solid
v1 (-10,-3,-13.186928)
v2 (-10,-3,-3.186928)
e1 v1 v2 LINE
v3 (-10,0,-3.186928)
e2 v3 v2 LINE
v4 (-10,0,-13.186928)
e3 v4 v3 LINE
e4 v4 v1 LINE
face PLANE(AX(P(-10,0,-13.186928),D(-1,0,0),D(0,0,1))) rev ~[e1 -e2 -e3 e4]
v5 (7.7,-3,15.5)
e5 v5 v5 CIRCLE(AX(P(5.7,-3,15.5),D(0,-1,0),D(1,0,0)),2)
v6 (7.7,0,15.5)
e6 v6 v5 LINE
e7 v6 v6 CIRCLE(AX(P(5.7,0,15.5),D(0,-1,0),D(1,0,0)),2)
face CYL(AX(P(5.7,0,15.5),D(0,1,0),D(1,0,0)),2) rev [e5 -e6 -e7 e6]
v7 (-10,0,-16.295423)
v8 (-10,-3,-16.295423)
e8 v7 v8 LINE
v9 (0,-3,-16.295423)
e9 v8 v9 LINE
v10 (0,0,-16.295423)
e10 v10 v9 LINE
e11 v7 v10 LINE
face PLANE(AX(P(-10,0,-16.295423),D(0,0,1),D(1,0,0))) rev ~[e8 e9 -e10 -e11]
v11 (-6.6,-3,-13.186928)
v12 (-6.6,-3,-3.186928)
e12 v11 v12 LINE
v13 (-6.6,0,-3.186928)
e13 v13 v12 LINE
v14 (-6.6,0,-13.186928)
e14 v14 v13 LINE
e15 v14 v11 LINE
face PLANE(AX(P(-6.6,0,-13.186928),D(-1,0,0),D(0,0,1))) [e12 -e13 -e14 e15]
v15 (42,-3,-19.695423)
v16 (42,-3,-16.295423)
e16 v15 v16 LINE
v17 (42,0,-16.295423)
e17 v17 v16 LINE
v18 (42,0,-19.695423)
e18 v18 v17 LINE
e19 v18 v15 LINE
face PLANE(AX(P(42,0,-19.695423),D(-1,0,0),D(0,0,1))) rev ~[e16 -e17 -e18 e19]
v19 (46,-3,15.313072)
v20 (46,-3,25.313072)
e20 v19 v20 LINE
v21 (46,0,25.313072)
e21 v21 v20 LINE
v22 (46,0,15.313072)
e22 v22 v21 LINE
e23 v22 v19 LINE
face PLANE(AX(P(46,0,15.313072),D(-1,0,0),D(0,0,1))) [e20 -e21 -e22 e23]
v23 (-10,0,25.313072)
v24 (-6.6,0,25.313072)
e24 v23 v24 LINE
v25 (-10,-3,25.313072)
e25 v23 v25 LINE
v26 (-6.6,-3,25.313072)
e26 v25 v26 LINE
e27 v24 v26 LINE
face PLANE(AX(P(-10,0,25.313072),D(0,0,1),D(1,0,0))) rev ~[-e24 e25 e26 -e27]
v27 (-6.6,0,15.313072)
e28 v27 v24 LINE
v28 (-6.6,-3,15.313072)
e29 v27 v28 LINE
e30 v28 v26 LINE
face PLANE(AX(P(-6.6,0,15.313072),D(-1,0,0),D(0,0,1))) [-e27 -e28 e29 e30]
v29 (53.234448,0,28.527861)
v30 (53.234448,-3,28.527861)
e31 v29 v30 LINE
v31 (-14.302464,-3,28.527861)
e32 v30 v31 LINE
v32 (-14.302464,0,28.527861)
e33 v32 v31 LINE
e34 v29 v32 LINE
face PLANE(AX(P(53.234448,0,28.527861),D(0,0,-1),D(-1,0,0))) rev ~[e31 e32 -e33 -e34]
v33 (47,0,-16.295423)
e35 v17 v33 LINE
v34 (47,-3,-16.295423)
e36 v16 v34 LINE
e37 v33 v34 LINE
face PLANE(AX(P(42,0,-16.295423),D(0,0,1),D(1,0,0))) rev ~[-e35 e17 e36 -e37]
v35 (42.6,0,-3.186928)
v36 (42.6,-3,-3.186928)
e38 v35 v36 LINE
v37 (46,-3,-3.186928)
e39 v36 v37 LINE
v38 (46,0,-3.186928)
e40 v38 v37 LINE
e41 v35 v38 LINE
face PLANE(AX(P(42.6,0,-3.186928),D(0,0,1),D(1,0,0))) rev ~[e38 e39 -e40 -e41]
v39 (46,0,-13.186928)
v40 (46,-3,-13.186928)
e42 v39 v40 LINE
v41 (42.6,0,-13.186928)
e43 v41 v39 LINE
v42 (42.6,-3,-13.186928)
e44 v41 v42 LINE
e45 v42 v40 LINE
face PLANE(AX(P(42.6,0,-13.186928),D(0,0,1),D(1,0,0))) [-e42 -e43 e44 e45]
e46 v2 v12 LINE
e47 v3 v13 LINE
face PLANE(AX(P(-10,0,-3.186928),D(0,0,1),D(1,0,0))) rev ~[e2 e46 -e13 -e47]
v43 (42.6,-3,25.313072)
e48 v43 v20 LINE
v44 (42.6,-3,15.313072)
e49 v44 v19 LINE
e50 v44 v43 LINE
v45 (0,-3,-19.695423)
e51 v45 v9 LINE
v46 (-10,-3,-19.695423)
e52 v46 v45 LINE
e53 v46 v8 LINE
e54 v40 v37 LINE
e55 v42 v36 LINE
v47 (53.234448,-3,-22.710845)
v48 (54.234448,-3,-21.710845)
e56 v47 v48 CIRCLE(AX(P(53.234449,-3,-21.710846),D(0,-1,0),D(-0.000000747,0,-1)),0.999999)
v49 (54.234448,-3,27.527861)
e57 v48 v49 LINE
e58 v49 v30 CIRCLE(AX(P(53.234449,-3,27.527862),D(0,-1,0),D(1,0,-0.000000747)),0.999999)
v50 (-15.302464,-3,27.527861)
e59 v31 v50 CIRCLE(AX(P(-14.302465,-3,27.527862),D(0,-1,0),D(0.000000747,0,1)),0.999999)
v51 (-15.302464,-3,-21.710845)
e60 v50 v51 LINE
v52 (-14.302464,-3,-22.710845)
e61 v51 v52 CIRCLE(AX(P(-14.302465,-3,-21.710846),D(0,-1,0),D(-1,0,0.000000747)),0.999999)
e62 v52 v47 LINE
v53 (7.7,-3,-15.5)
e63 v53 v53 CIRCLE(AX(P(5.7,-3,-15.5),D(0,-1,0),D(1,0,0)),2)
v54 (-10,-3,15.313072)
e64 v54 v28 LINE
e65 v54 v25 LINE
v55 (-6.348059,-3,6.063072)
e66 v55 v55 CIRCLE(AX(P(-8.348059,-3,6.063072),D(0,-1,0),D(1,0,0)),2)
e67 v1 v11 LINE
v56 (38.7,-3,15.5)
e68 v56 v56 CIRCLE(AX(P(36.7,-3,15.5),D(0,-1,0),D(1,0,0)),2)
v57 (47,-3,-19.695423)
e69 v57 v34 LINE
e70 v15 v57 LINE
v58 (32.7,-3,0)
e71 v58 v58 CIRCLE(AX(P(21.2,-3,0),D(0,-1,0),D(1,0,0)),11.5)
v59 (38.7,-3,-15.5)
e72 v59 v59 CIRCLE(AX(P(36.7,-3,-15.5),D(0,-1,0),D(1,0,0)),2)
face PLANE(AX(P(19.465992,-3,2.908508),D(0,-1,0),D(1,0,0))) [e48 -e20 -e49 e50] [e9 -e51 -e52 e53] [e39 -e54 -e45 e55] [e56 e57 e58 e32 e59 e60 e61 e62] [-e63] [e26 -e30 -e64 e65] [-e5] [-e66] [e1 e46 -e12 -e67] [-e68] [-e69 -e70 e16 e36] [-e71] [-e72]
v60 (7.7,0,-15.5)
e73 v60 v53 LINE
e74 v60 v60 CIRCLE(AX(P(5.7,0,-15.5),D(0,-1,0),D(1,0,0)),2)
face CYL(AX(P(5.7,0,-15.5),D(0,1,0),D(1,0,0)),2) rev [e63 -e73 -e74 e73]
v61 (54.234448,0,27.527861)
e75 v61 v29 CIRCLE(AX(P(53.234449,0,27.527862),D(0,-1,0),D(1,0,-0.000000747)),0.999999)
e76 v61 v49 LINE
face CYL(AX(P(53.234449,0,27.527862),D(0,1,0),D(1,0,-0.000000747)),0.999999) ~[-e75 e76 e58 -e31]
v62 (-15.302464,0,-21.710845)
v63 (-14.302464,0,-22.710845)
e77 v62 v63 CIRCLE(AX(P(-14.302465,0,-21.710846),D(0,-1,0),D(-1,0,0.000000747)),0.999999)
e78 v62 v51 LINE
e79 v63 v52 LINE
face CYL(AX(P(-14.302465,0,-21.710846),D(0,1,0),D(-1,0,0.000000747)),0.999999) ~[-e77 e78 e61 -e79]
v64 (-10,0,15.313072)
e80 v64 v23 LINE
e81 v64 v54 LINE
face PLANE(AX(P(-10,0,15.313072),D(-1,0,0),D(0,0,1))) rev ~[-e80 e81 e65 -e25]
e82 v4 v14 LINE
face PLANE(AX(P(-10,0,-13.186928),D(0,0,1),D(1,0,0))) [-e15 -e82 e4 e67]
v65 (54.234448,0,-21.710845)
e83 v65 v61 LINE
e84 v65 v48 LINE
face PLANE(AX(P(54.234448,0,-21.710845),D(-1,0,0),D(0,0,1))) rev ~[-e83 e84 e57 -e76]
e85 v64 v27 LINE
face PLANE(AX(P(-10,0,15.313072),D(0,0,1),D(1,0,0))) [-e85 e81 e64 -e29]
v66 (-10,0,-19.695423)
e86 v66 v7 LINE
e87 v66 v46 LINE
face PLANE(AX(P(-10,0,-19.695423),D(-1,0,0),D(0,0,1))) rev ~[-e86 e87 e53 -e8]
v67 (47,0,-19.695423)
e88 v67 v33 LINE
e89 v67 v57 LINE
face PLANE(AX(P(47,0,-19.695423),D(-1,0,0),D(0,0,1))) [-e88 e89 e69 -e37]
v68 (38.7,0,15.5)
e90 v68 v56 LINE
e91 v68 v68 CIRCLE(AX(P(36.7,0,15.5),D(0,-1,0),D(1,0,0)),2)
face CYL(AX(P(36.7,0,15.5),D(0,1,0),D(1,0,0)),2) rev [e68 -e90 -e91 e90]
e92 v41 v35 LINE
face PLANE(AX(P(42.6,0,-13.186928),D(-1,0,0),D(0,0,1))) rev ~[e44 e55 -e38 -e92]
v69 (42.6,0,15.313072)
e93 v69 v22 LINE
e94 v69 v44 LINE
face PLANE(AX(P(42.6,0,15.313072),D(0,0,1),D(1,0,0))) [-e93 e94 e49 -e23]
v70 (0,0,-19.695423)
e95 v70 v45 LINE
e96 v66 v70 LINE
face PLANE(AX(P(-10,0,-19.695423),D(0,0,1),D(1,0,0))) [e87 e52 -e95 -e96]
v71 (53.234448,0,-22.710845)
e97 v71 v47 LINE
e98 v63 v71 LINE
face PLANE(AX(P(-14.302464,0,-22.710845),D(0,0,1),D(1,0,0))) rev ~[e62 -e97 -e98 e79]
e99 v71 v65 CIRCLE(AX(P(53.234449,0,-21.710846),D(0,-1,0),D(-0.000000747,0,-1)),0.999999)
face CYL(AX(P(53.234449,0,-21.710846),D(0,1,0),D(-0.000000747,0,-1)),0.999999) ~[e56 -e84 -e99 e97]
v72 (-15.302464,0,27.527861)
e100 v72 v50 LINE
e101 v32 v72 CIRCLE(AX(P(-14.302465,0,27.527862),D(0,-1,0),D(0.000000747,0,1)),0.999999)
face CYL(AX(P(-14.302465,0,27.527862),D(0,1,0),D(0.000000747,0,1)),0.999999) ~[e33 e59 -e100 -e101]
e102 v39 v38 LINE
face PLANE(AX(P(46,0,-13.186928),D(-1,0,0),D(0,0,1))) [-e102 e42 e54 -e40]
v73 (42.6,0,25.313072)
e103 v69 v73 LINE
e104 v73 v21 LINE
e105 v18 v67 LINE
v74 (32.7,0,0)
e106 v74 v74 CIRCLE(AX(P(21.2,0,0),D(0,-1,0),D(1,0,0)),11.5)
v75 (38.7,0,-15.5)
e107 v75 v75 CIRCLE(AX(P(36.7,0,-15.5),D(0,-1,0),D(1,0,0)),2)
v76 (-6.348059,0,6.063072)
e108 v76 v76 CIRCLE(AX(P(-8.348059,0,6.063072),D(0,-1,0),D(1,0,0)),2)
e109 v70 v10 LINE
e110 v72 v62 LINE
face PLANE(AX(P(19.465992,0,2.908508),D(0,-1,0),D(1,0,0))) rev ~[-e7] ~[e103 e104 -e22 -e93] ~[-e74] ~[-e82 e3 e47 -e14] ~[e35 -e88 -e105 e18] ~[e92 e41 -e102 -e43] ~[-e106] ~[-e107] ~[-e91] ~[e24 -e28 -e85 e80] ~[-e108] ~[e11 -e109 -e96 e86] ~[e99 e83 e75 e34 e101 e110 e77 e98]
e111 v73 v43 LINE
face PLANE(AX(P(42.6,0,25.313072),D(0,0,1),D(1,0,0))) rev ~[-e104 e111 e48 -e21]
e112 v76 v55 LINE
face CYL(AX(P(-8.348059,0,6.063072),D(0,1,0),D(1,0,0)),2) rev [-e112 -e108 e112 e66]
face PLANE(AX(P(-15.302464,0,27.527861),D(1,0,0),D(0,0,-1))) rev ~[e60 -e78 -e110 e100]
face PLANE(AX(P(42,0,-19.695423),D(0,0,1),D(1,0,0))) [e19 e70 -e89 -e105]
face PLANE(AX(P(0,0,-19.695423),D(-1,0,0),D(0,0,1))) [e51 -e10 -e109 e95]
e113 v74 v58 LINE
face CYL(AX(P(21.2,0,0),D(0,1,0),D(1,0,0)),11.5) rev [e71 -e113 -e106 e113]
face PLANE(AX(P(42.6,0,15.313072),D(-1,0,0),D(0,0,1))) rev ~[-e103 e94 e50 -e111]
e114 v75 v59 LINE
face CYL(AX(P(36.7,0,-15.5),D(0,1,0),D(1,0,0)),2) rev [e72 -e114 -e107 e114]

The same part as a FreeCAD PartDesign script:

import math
import FreeCAD as App
import Part
import Sketcher
from FreeCAD import Vector
Q = App.Units.Quantity


def add_polygon(sketch, points):
    """Adds a closed chain of lines whose ends are joined by coincident constraints."""
    first, n = sketch.GeometryCount, len(points)
    for a, b in zip(points, points[1:] + points[:1]):
        sketch.addGeometry(Part.LineSegment(App.Vector(*a, 0), App.Vector(*b, 0)), False)
    for i in range(n):
        sketch.addConstraint(Sketcher.Constraint("Coincident", first + i, 2, first + (i + 1) % n, 1))

doc = App.newDocument("Part")
body = doc.addObject("PartDesign::Body", "Body")

# Sketch on XZ plane
sketch1 = doc.addObject("Sketcher::SketchObject", "Sketch")
body.addObject(sketch1)
sketch1.AttachmentSupport = (doc.XZ_Plane, [""])
sketch1.MapMode = "FlatFace"
sketch1.addGeometry(Part.LineSegment(Vector(53.2, 28.5, 0), Vector(-14.3, 28.5, 0)), False)  # 0
sketch1.addGeometry(Part.ArcOfCircle(Part.Circle(Vector(-14.3, 27.5, 0), Vector(0, 0, 1), 1), math.radians(90), math.radians(180)), False)  # 1
sketch1.addGeometry(Part.LineSegment(Vector(-15.3, 27.5, 0), Vector(-15.3, -21.7, 0)), False)  # 2
sketch1.addGeometry(Part.ArcOfCircle(Part.Circle(Vector(-14.3, -21.7, 0), Vector(0, 0, 1), 1), math.radians(180), math.radians(270)), False)  # 3
sketch1.addGeometry(Part.LineSegment(Vector(-14.3, -22.7, 0), Vector(53.2, -22.7, 0)), False)  # 4
sketch1.addGeometry(Part.ArcOfCircle(Part.Circle(Vector(53.2, -21.7, 0), Vector(0, 0, 1), 1), math.radians(-90), math.radians(0)), False)  # 5
sketch1.addGeometry(Part.LineSegment(Vector(54.2, -21.7, 0), Vector(54.2, 27.5, 0)), False)  # 6
sketch1.addGeometry(Part.ArcOfCircle(Part.Circle(Vector(53.2, 27.5, 0), Vector(0, 0, 1), 1), math.radians(0), math.radians(90)), False)  # 7
add_polygon(sketch1, [(0, -19.7), (-10, -19.7), (-10, -16.3), (0, -16.3)])  # lines 8-11
sketch1.addGeometry(Part.Circle(Vector(5.7, -15.5, 0), Vector(0, 0, 1), 2), False)  # 12
add_polygon(sketch1, [(-6.6, -13.2), (-10, -13.2), (-10, -3.2), (-6.6, -3.2)])  # lines 13-16
sketch1.addGeometry(Part.Circle(Vector(36.7, -15.5, 0), Vector(0, 0, 1), 2), False)  # 17
add_polygon(sketch1, [(47, -19.7), (42, -19.7), (42, -16.3), (47, -16.3)])  # lines 18-21
sketch1.addGeometry(Part.Circle(Vector(21.2, 0, 0), Vector(0, 0, 1), 11.5), False)  # 22
add_polygon(sketch1, [(46, -13.2), (42.6, -13.2), (42.6, -3.2), (46, -3.2)])  # lines 23-26
sketch1.addGeometry(Part.Circle(Vector(-8.3, 6.1, 0), Vector(0, 0, 1), 2), False)  # 27
add_polygon(sketch1, [(-6.6, 15.3), (-10, 15.3), (-10, 25.3), (-6.6, 25.3)])  # lines 28-31
sketch1.addGeometry(Part.Circle(Vector(5.7, 15.5, 0), Vector(0, 0, 1), 2), False)  # 32
sketch1.addGeometry(Part.Circle(Vector(36.7, 15.5, 0), Vector(0, 0, 1), 2), False)  # 33
add_polygon(sketch1, [(46, 15.3), (42.6, 15.3), (42.6, 25.3), (46, 25.3)])  # lines 34-37
sketch1.addConstraint(Sketcher.Constraint("Tangent", 0, 2, 1, 1))
sketch1.addConstraint(Sketcher.Constraint("Tangent", 1, 2, 2, 1))
sketch1.addConstraint(Sketcher.Constraint("Tangent", 2, 2, 3, 1))
sketch1.addConstraint(Sketcher.Constraint("Tangent", 3, 2, 4, 1))
sketch1.addConstraint(Sketcher.Constraint("Tangent", 4, 2, 5, 1))
sketch1.addConstraint(Sketcher.Constraint("Tangent", 5, 2, 6, 1))
sketch1.addConstraint(Sketcher.Constraint("Tangent", 6, 2, 7, 1))
sketch1.addConstraint(Sketcher.Constraint("Tangent", 7, 2, 0, 1))
sketch1.addConstraint(Sketcher.Constraint("Horizontal", 0))
sketch1.addConstraint(Sketcher.Constraint("Vertical", 2))
sketch1.addConstraint(Sketcher.Constraint("Horizontal", 4))
sketch1.addConstraint(Sketcher.Constraint("Vertical", 6))
sketch1.addConstraint(Sketcher.Constraint("Horizontal", 8))
sketch1.addConstraint(Sketcher.Constraint("Vertical", 9))
sketch1.addConstraint(Sketcher.Constraint("Horizontal", 10))
sketch1.addConstraint(Sketcher.Constraint("Vertical", 11))
sketch1.addConstraint(Sketcher.Constraint("Horizontal", 13))
sketch1.addConstraint(Sketcher.Constraint("Vertical", 14))
sketch1.addConstraint(Sketcher.Constraint("Horizontal", 15))
sketch1.addConstraint(Sketcher.Constraint("Vertical", 16))
sketch1.addConstraint(Sketcher.Constraint("Horizontal", 18))
sketch1.addConstraint(Sketcher.Constraint("Vertical", 19))
sketch1.addConstraint(Sketcher.Constraint("Horizontal", 20))
sketch1.addConstraint(Sketcher.Constraint("Vertical", 21))
sketch1.addConstraint(Sketcher.Constraint("Horizontal", 23))
sketch1.addConstraint(Sketcher.Constraint("Vertical", 24))
sketch1.addConstraint(Sketcher.Constraint("Horizontal", 25))
sketch1.addConstraint(Sketcher.Constraint("Vertical", 26))
sketch1.addConstraint(Sketcher.Constraint("Horizontal", 28))
sketch1.addConstraint(Sketcher.Constraint("Vertical", 29))
sketch1.addConstraint(Sketcher.Constraint("Horizontal", 30))
sketch1.addConstraint(Sketcher.Constraint("Vertical", 31))
sketch1.addConstraint(Sketcher.Constraint("Horizontal", 34))
sketch1.addConstraint(Sketcher.Constraint("Vertical", 35))
sketch1.addConstraint(Sketcher.Constraint("Horizontal", 36))
sketch1.addConstraint(Sketcher.Constraint("Vertical", 37))
sketch1.addConstraint(Sketcher.Constraint("Equal", 1, 3))
sketch1.addConstraint(Sketcher.Constraint("Equal", 3, 5))
sketch1.addConstraint(Sketcher.Constraint("Equal", 5, 7))
sketch1.addConstraint(Sketcher.Constraint("Equal", 12, 17))
sketch1.addConstraint(Sketcher.Constraint("Equal", 17, 27))
sketch1.addConstraint(Sketcher.Constraint("Equal", 27, 32))
sketch1.addConstraint(Sketcher.Constraint("Equal", 32, 33))
sketch1.addConstraint(Sketcher.Constraint("Symmetric", 12, 3, 32, 3, -1))
sketch1.addConstraint(Sketcher.Constraint("Symmetric", 17, 3, 33, 3, -1))
sketch1.addConstraint(Sketcher.Constraint("PointOnObject", 22, 3, -1))
sketch1.addConstraint(Sketcher.Constraint("PointOnObject", 10, 2, -2))
sketch1.addConstraint(Sketcher.Constraint("Horizontal", 12, 3, 17, 3))
sketch1.addConstraint(Sketcher.Constraint("Horizontal", 11, 2, 18, 2))
sketch1.addConstraint(Sketcher.Constraint("Horizontal", 10, 2, 19, 2))
sketch1.addConstraint(Sketcher.Constraint("Horizontal", 16, 2, 23, 2))
sketch1.addConstraint(Sketcher.Constraint("Horizontal", 15, 2, 24, 2))
sketch1.addConstraint(Sketcher.Constraint("Horizontal", 31, 2, 34, 2))
sketch1.addConstraint(Sketcher.Constraint("Horizontal", 30, 2, 35, 2))
sketch1.addConstraint(Sketcher.Constraint("Vertical", 9, 2, 13, 2))
sketch1.addConstraint(Sketcher.Constraint("Vertical", 14, 2, 28, 2))
sketch1.addConstraint(Sketcher.Constraint("Vertical", 16, 2, 30, 2))
sketch1.addConstraint(Sketcher.Constraint("Vertical", 24, 2, 34, 2))
sketch1.addConstraint(Sketcher.Constraint("Vertical", 26, 2, 36, 2))
sketch1.addConstraint(Sketcher.Constraint("Equal", 15, 23))
sketch1.addConstraint(Sketcher.Constraint("Equal", 36, 9))
sketch1.addConstraint(Sketcher.Constraint("Equal", 10, 14))
sketch1.addConstraint(Sketcher.Constraint("Equal", 26, 29))
sketch1.addConstraint(Sketcher.Constraint("Diameter", 12, Q("4 mm")))
sketch1.addConstraint(Sketcher.Constraint("Diameter", 22, Q("23 mm")))
sketch1.addConstraint(Sketcher.Constraint("Radius", 1, Q("0.999999 mm")))
sketch1.addConstraint(Sketcher.Constraint("DistanceX", 8, 2, 8, 1, Q("10 mm")))
sketch1.addConstraint(Sketcher.Constraint("DistanceX", 18, 2, 18, 1, Q("5 mm")))
sketch1.addConstraint(Sketcher.Constraint("DistanceX", 13, 2, 13, 1, Q("3.4 mm")))
sketch1.addConstraint(Sketcher.Constraint("DistanceX", -1, 1, 18, 2, Q("42 mm")))
sketch1.addConstraint(Sketcher.Constraint("DistanceX", -1, 1, 25, 2, Q("46 mm")))
sketch1.addConstraint(Sketcher.Constraint("DistanceX", 12, 3, 17, 3, Q("31 mm")))
sketch1.addConstraint(Sketcher.Constraint("DistanceY", 12, 3, 32, 3, Q("31 mm")))
sketch1.addConstraint(Sketcher.Constraint("DistanceX", -1, 1, 12, 3, Q("5.7 mm")))
sketch1.addConstraint(Sketcher.Constraint("DistanceX", -1, 1, 22, 3, Q("21.2 mm")))
sketch1.addConstraint(Sketcher.Constraint("DistanceY", 24, 2, 34, 2, Q("18.5 mm")))
sketch1.addConstraint(Sketcher.Constraint("DistanceY", 14, 2, 27, 3, Q("9.25 mm")))
sketch1.addConstraint(Sketcher.Constraint("DistanceX", 0, 2, 0, 1, Q("67.536912 mm")))
sketch1.addConstraint(Sketcher.Constraint("DistanceY", 2, 2, 2, 1, Q("49.238706 mm")))
sketch1.addConstraint(Sketcher.Constraint("DistanceY", -1, 1, 1, 3, Q("27.527862 mm")))
sketch1.addConstraint(Sketcher.Constraint("DistanceX", -1, 1, 5, 3, Q("53.234449 mm")))
sketch1.addConstraint(Sketcher.Constraint("DistanceX", 27, 3, -1, 1, Q("8.348059 mm")))
sketch1.addConstraint(Sketcher.Constraint("DistanceY", 14, 2, -1, 1, Q("3.186928 mm")))
sketch1.addConstraint(Sketcher.Constraint("DistanceY", 3, 2, 8, 2, Q("3.015422 mm")))
pad1 = doc.addObject("PartDesign::Pad", "Pad")
body.addObject(pad1)
pad1.Profile = sketch1
pad1.Length = 3

doc.recompute()
